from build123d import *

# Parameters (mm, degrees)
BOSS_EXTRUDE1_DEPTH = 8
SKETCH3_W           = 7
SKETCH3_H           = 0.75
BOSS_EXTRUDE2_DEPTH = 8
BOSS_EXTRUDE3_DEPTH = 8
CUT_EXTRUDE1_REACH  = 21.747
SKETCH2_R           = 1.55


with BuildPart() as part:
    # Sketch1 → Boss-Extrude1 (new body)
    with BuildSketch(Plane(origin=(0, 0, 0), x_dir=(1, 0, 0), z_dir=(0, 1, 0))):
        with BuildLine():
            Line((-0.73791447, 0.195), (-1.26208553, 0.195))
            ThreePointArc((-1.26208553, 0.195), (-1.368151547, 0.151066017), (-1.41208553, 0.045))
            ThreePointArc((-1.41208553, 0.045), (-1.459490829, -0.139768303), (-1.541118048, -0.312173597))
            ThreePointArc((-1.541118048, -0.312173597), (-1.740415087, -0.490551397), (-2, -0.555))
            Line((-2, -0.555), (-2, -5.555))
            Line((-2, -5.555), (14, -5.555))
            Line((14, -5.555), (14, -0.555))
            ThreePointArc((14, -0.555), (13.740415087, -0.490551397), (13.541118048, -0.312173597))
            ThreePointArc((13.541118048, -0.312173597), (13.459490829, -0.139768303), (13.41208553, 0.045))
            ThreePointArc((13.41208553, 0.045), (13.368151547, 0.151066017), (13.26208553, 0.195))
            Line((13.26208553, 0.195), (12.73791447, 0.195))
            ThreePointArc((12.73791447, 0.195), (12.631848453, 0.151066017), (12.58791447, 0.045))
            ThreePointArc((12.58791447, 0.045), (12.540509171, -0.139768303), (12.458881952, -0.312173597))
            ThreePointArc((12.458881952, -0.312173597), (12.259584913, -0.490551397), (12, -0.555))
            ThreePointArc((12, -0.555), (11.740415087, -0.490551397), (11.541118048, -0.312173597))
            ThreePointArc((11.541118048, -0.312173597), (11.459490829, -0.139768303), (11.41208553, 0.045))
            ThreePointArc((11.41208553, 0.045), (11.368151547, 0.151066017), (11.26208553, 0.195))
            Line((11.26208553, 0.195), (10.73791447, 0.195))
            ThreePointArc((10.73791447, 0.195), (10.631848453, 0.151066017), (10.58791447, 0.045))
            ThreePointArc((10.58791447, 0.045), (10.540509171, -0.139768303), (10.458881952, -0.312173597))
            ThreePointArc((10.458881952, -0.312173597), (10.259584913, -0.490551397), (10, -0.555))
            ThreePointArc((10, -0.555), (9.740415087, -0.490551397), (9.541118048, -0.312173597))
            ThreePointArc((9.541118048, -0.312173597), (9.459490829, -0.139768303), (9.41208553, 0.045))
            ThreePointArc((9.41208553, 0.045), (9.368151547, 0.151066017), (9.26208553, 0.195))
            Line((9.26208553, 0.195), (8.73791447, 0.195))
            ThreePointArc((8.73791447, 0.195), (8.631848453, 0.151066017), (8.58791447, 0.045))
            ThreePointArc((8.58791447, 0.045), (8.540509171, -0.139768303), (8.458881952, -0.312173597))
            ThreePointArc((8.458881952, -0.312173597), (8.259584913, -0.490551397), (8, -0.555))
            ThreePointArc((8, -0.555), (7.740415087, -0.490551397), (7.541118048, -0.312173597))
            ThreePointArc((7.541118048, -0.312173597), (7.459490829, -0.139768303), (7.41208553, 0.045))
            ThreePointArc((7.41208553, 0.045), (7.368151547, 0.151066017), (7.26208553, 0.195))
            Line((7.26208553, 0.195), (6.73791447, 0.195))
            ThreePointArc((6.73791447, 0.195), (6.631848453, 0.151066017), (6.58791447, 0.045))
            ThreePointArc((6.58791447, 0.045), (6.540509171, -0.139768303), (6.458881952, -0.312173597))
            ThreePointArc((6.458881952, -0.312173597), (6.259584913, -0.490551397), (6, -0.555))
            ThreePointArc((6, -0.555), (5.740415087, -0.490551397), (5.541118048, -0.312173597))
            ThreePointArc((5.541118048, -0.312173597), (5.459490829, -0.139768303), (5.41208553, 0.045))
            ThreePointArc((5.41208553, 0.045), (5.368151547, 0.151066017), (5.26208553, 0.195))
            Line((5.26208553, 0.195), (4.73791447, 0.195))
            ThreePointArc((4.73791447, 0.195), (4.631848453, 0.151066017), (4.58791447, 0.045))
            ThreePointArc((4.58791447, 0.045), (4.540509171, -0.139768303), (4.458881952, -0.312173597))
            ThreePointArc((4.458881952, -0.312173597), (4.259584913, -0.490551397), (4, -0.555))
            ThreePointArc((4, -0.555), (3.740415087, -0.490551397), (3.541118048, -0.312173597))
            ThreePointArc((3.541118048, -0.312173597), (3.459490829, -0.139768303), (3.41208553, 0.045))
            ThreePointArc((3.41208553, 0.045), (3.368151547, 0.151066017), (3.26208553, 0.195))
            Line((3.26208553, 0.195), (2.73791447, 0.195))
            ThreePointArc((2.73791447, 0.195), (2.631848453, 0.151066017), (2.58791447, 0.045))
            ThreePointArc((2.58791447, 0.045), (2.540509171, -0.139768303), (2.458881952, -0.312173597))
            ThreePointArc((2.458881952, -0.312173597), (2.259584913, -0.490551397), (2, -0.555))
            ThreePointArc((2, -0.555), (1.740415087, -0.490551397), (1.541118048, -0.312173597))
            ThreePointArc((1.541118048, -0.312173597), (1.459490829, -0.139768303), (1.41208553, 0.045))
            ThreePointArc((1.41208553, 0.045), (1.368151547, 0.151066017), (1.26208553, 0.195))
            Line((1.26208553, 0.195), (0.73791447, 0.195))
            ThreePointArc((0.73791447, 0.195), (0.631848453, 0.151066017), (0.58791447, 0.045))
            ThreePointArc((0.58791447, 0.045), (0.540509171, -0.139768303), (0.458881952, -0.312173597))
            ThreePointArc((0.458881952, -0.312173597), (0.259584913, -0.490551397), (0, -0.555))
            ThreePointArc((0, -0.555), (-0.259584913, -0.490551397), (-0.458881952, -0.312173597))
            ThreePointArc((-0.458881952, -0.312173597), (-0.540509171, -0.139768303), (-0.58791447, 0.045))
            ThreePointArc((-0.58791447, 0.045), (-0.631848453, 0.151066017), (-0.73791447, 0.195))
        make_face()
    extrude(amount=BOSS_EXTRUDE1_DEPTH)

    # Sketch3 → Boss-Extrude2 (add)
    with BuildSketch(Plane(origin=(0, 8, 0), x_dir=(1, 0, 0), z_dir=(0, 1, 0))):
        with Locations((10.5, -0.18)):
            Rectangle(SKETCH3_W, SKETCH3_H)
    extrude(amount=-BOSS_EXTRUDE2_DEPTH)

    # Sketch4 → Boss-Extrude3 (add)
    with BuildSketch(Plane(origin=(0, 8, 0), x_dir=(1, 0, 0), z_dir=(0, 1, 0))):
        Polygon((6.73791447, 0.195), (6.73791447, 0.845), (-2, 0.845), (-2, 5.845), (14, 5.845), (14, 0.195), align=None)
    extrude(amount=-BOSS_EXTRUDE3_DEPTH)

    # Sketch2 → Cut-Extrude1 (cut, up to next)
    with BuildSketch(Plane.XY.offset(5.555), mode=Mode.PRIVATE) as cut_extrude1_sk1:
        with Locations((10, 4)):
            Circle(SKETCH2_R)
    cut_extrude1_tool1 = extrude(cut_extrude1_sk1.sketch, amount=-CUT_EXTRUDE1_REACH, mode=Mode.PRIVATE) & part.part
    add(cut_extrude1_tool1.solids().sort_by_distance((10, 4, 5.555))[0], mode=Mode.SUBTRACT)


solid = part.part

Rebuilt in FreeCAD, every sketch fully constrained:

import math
import FreeCAD as App
import Part
import Sketcher

V = App.Vector
Q = App.Units.Quantity


def add_polygon(sketch, points):
    """Adds a closed chain of lines whose ends are joined by coincident constraints."""
    first, n = sketch.GeometryCount, len(points)
    for a, b in zip(points, points[1:] + points[:1]):
        sketch.addGeometry(Part.LineSegment(App.Vector(*a, 0), App.Vector(*b, 0)), False)
    for i in range(n):
        sketch.addConstraint(Sketcher.Constraint("Coincident", first + i, 2, first + (i + 1) % n, 1))

doc = App.newDocument("Part")
body = doc.addObject("PartDesign::Body", "Body")

# Sketch on XZ plane
sketch1 = body.newObject("Sketcher::SketchObject", "Sketch")
sketch1.AttachmentSupport = (doc.getObject("XZ_Plane"), [""])
sketch1.MapMode = "FlatFace"
sketch1.addGeometry([
    Part.LineSegment(V(-0.737914, -0.195, 0), V(-1.262086, -0.195, 0)),  # 0
    Part.ArcOfCircle(Part.Circle(V(-1.262086, -0.045, 0), V(0, 0, 1), 0.15), math.radians(-180), math.radians(-90)),  # 1
    Part.ArcOfCircle(Part.Circle(V(-2.4, -0.2, 0), V(0, 0, 1), 1), math.radians(8.916796), math.radians(30.808721)),  # 2
    Part.ArcOfCircle(Part.Circle(V(-2, 0, 0), V(0, 0, 1), 0.555), math.radians(34.22713), math.radians(90)),  # 3
    Part.LineSegment(V(-2, 0.555, 0), V(-2, 5.555, 0)),  # 4
    Part.LineSegment(V(-2, 5.555, 0), V(14, 5.555, 0)),  # 5
    Part.LineSegment(V(14, 5.555, 0), V(14, 0.555, 0)),  # 6
    Part.ArcOfCircle(Part.Circle(V(14, 0, 0), V(0, 0, 1), 0.555), math.radians(90), math.radians(145.77287)),  # 7
    Part.ArcOfCircle(Part.Circle(V(14.4, -0.2, 0), V(0, 0, 1), 1), math.radians(149.191279), math.radians(171.083204)),  # 8
    Part.ArcOfCircle(Part.Circle(V(13.262086, -0.045, 0), V(0, 0, 1), 0.15), math.radians(-90), math.radians(0)),  # 9
    Part.LineSegment(V(13.262086, -0.195, 0), V(12.737914, -0.195, 0)),  # 10
    Part.ArcOfCircle(Part.Circle(V(12.737914, -0.045, 0), V(0, 0, 1), 0.15), math.radians(-180), math.radians(-90)),  # 11
    Part.ArcOfCircle(Part.Circle(V(11.6, -0.2, 0), V(0, 0, 1), 1), math.radians(8.916796), math.radians(30.808721)),  # 12
    Part.ArcOfCircle(Part.Circle(V(12, 0, 0), V(0, 0, 1), 0.555), math.radians(34.22713), math.radians(90)),  # 13
    Part.ArcOfCircle(Part.Circle(V(12, 0, 0), V(0, 0, 1), 0.555), math.radians(90), math.radians(145.77287)),  # 14
    Part.ArcOfCircle(Part.Circle(V(12.4, -0.2, 0), V(0, 0, 1), 1), math.radians(149.191279), math.radians(171.083204)),  # 15
    Part.ArcOfCircle(Part.Circle(V(11.262086, -0.045, 0), V(0, 0, 1), 0.15), math.radians(-90), math.radians(0)),  # 16
    Part.LineSegment(V(11.262086, -0.195, 0), V(10.737914, -0.195, 0)),  # 17
    Part.ArcOfCircle(Part.Circle(V(10.737914, -0.045, 0), V(0, 0, 1), 0.15), math.radians(-180), math.radians(-90)),  # 18
    Part.ArcOfCircle(Part.Circle(V(9.6, -0.2, 0), V(0, 0, 1), 1), math.radians(8.916796), math.radians(30.808721)),  # 19
    Part.ArcOfCircle(Part.Circle(V(10, 0, 0), V(0, 0, 1), 0.555), math.radians(34.22713), math.radians(90)),  # 20
    Part.ArcOfCircle(Part.Circle(V(10, 0, 0), V(0, 0, 1), 0.555), math.radians(90), math.radians(145.77287)),  # 21
    Part.ArcOfCircle(Part.Circle(V(10.4, -0.2, 0), V(0, 0, 1), 1), math.radians(149.191279), math.radians(171.083204)),  # 22
    Part.ArcOfCircle(Part.Circle(V(9.262086, -0.045, 0), V(0, 0, 1), 0.15), math.radians(-90), math.radians(0)),  # 23
    Part.LineSegment(V(9.262086, -0.195, 0), V(8.737914, -0.195, 0)),  # 24
    Part.ArcOfCircle(Part.Circle(V(8.737914, -0.045, 0), V(0, 0, 1), 0.15), math.radians(-180), math.radians(-90)),  # 25
    Part.ArcOfCircle(Part.Circle(V(7.6, -0.2, 0), V(0, 0, 1), 1), math.radians(8.916796), math.radians(30.808721)),  # 26
    Part.ArcOfCircle(Part.Circle(V(8, 0, 0), V(0, 0, 1), 0.555), math.radians(34.22713), math.radians(90)),  # 27
    Part.ArcOfCircle(Part.Circle(V(8, 0, 0), V(0, 0, 1), 0.555), math.radians(90), math.radians(145.77287)),  # 28
    Part.ArcOfCircle(Part.Circle(V(8.4, -0.2, 0), V(0, 0, 1), 1), math.radians(149.191279), math.radians(171.083204)),  # 29
    Part.ArcOfCircle(Part.Circle(V(7.262086, -0.045, 0), V(0, 0, 1), 0.15), math.radians(-90), math.radians(0)),  # 30
    Part.LineSegment(V(7.262086, -0.195, 0), V(6.737914, -0.195, 0)),  # 31
    Part.ArcOfCircle(Part.Circle(V(6.737914, -0.045, 0), V(0, 0, 1), 0.15), math.radians(-180), math.radians(-90)),  # 32
    Part.ArcOfCircle(Part.Circle(V(5.6, -0.2, 0), V(0, 0, 1), 1), math.radians(8.916796), math.radians(30.808721)),  # 33
    Part.ArcOfCircle(Part.Circle(V(6, 0, 0), V(0, 0, 1), 0.555), math.radians(34.22713), math.radians(90)),  # 34
    Part.ArcOfCircle(Part.Circle(V(6, 0, 0), V(0, 0, 1), 0.555), math.radians(90), math.radians(145.77287)),  # 35
    Part.ArcOfCircle(Part.Circle(V(6.4, -0.2, 0), V(0, 0, 1), 1), math.radians(149.191279), math.radians(171.083204)),  # 36
    Part.ArcOfCircle(Part.Circle(V(5.262086, -0.045, 0), V(0, 0, 1), 0.15), math.radians(-90), math.radians(0)),  # 37
    Part.LineSegment(V(5.262086, -0.195, 0), V(4.737914, -0.195, 0)),  # 38
    Part.ArcOfCircle(Part.Circle(V(4.737914, -0.045, 0), V(0, 0, 1), 0.15), math.radians(-180), math.radians(-90)),  # 39
    Part.ArcOfCircle(Part.Circle(V(3.6, -0.2, 0), V(0, 0, 1), 1), math.radians(8.916796), math.radians(30.808721)),  # 40
    Part.ArcOfCircle(Part.Circle(V(4, 0, 0), V(0, 0, 1), 0.555), math.radians(34.22713), math.radians(90)),  # 41
    Part.ArcOfCircle(Part.Circle(V(4, 0, 0), V(0, 0, 1), 0.555), math.radians(90), math.radians(145.77287)),  # 42
    Part.ArcOfCircle(Part.Circle(V(4.4, -0.2, 0), V(0, 0, 1), 1), math.radians(149.191279), math.radians(171.083204)),  # 43
    Part.ArcOfCircle(Part.Circle(V(3.262086, -0.045, 0), V(0, 0, 1), 0.15), math.radians(-90), math.radians(0)),  # 44
    Part.LineSegment(V(3.262086, -0.195, 0), V(2.737914, -0.195, 0)),  # 45
    Part.ArcOfCircle(Part.Circle(V(2.737914, -0.045, 0), V(0, 0, 1), 0.15), math.radians(-180), math.radians(-90)),  # 46
    Part.ArcOfCircle(Part.Circle(V(1.6, -0.2, 0), V(0, 0, 1), 1), math.radians(8.916796), math.radians(30.808721)),  # 47
    Part.ArcOfCircle(Part.Circle(V(2, 0, 0), V(0, 0, 1), 0.555), math.radians(34.22713), math.radians(90)),  # 48
    Part.ArcOfCircle(Part.Circle(V(2, 0, 0), V(0, 0, 1), 0.555), math.radians(90), math.radians(145.77287)),  # 49
    Part.ArcOfCircle(Part.Circle(V(2.4, -0.2, 0), V(0, 0, 1), 1), math.radians(149.191279), math.radians(171.083204)),  # 50
    Part.ArcOfCircle(Part.Circle(V(1.262086, -0.045, 0), V(0, 0, 1), 0.15), math.radians(-90), math.radians(0)),  # 51
    Part.LineSegment(V(1.262086, -0.195, 0), V(0.737914, -0.195, 0)),  # 52
    Part.ArcOfCircle(Part.Circle(V(0.737914, -0.045, 0), V(0, 0, 1), 0.15), math.radians(-180), math.radians(-90)),  # 53
    Part.ArcOfCircle(Part.Circle(V(-0.4, -0.2, 0), V(0, 0, 1), 1), math.radians(8.916796), math.radians(30.808721)),  # 54
    Part.ArcOfCircle(Part.Circle(V(0, 0, 0), V(0, 0, 1), 0.555), math.radians(34.22713), math.radians(90)),  # 55
    Part.ArcOfCircle(Part.Circle(V(0, 0, 0), V(0, 0, 1), 0.555), math.radians(90), math.radians(145.77287)),  # 56
    Part.ArcOfCircle(Part.Circle(V(0.4, -0.2, 0), V(0, 0, 1), 1), math.radians(149.191279), math.radians(171.083204)),  # 57
    Part.ArcOfCircle(Part.Circle(V(-0.737914, -0.045, 0), V(0, 0, 1), 0.15), math.radians(-90), math.radians(0)),  # 58
], False)
sketch1.addConstraint([
    Sketcher.Constraint("Tangent", 0, 2, 1, 2),
    Sketcher.Constraint("Coincident", 1, 1, 2, 1),
    Sketcher.Constraint("Coincident", 2, 2, 3, 1),
    Sketcher.Constraint("Coincident", 3, 2, 4, 1),
    Sketcher.Constraint("Coincident", 4, 2, 5, 1),
    Sketcher.Constraint("Coincident", 5, 2, 6, 1),
    Sketcher.Constraint("Coincident", 6, 2, 7, 1),
    Sketcher.Constraint("Coincident", 7, 2, 8, 1),
    Sketcher.Constraint("Coincident", 8, 2, 9, 2),
    Sketcher.Constraint("Tangent", 9, 1, 10, 1),
    Sketcher.Constraint("Tangent", 10, 2, 11, 2),
    Sketcher.Constraint("Coincident", 11, 1, 12, 1),
    Sketcher.Constraint("Coincident", 12, 2, 13, 1),
    Sketcher.Constraint("Tangent", 13, 2, 14, 1),
    Sketcher.Constraint("Coincident", 14, 2, 15, 1),
    Sketcher.Constraint("Coincident", 15, 2, 16, 2),
    Sketcher.Constraint("Tangent", 16, 1, 17, 1),
    Sketcher.Constraint("Tangent", 17, 2, 18, 2),
    Sketcher.Constraint("Coincident", 18, 1, 19, 1),
    Sketcher.Constraint("Coincident", 19, 2, 20, 1),
    Sketcher.Constraint("Tangent", 20, 2, 21, 1),
    Sketcher.Constraint("Coincident", 21, 2, 22, 1),
    Sketcher.Constraint("Coincident", 22, 2, 23, 2),
    Sketcher.Constraint("Tangent", 23, 1, 24, 1),
    Sketcher.Constraint("Tangent", 24, 2, 25, 2),
    Sketcher.Constraint("Coincident", 25, 1, 26, 1),
    Sketcher.Constraint("Coincident", 26, 2, 27, 1),
    Sketcher.Constraint("Tangent", 27, 2, 28, 1),
    Sketcher.Constraint("Coincident", 28, 2, 29, 1),
    Sketcher.Constraint("Coincident", 29, 2, 30, 2),
    Sketcher.Constraint("Tangent", 30, 1, 31, 1),
    Sketcher.Constraint("Tangent", 31, 2, 32, 2),
    Sketcher.Constraint("Coincident", 32, 1, 33, 1),
    Sketcher.Constraint("Coincident", 33, 2, 34, 1),
    Sketcher.Constraint("Tangent", 34, 2, 35, 1),
    Sketcher.Constraint("Coincident", 35, 2, 36, 1),
    Sketcher.Constraint("Coincident", 36, 2, 37, 2),
    Sketcher.Constraint("Tangent", 37, 1, 38, 1),
    Sketcher.Constraint("Tangent", 38, 2, 39, 2),
    Sketcher.Constraint("Coincident", 39, 1, 40, 1),
    Sketcher.Constraint("Coincident", 40, 2, 41, 1),
    Sketcher.Constraint("Tangent", 41, 2, 42, 1),
    Sketcher.Constraint("Coincident", 42, 2, 43, 1),
    Sketcher.Constraint("Coincident", 43, 2, 44, 2),
    Sketcher.Constraint("Tangent", 44, 1, 45, 1),
    Sketcher.Constraint("Tangent", 45, 2, 46, 2),
    Sketcher.Constraint("Coincident", 46, 1, 47, 1),
    Sketcher.Constraint("Coincident", 47, 2, 48, 1),
    Sketcher.Constraint("Tangent", 48, 2, 49, 1),
    Sketcher.Constraint("Coincident", 49, 2, 50, 1),
    Sketcher.Constraint("Coincident", 50, 2, 51, 2),
    Sketcher.Constraint("Tangent", 51, 1, 52, 1),
    Sketcher.Constraint("Tangent", 52, 2, 53, 2),
    Sketcher.Constraint("Coincident", 53, 1, 54, 1),
    Sketcher.Constraint("Coincident", 54, 2, 55, 1),
    Sketcher.Constraint("Tangent", 55, 2, 56, 1),
    Sketcher.Constraint("Coincident", 56, 2, 57, 1),
    Sketcher.Constraint("Coincident", 57, 2, 58, 2),
    Sketcher.Constraint("Tangent", 58, 1, 0, 1),
    Sketcher.Constraint("Horizontal", 0),
    Sketcher.Constraint("Vertical", 4),
    Sketcher.Constraint("Horizontal", 5),
    Sketcher.Constraint("Vertical", 6),
    Sketcher.Constraint("Horizontal", 10),
    Sketcher.Constraint("Horizontal", 17),
    Sketcher.Constraint("Horizontal", 24),
    Sketcher.Constraint("Horizontal", 31),
    Sketcher.Constraint("Horizontal", 38),
    Sketcher.Constraint("Horizontal", 45),
    Sketcher.Constraint("Horizontal", 52),
    Sketcher.Constraint("Coincident", 55, 3, -1, 1),
    Sketcher.Constraint("Equal", 3, 7),
    Sketcher.Constraint("Equal", 2, 8),
    Sketcher.Constraint("Equal", 1, 9),
    Sketcher.Constraint("Equal", 9, 11),
    Sketcher.Constraint("Equal", 8, 12),
    Sketcher.Constraint("Equal", 7, 13),
    Sketcher.Constraint("Equal", 13, 14),
    Sketcher.Constraint("Equal", 12, 15),
    Sketcher.Constraint("Equal", 11, 16),
    Sketcher.Constraint("Equal", 16, 18),
    Sketcher.Constraint("Equal", 15, 19),
    Sketcher.Constraint("Equal", 14, 20),
    Sketcher.Constraint("Equal", 20, 21),
    Sketcher.Constraint("Equal", 19, 22),
    Sketcher.Constraint("Equal", 18, 23),
    Sketcher.Constraint("Equal", 23, 25),
    Sketcher.Constraint("Equal", 22, 26),
    Sketcher.Constraint("Equal", 21, 27),
    Sketcher.Constraint("Equal", 27, 28),
    Sketcher.Constraint("Equal", 26, 29),
    Sketcher.Constraint("Equal", 25, 30),
    Sketcher.Constraint("Equal", 30, 32),
    Sketcher.Constraint("Equal", 29, 33),
    Sketcher.Constraint("Equal", 28, 34),
    Sketcher.Constraint("Equal", 34, 35),
    Sketcher.Constraint("Equal", 33, 36),
    Sketcher.Constraint("Equal", 32, 37),
    Sketcher.Constraint("Equal", 37, 39),
    Sketcher.Constraint("Equal", 36, 40),
    Sketcher.Constraint("Equal", 35, 41),
    Sketcher.Constraint("Equal", 41, 42),
    Sketcher.Constraint("Equal", 40, 43),
    Sketcher.Constraint("Equal", 39, 44),
    Sketcher.Constraint("Equal", 44, 46),
    Sketcher.Constraint("Equal", 43, 47),
    Sketcher.Constraint("Equal", 42, 48),
    Sketcher.Constraint("Equal", 48, 49),
    Sketcher.Constraint("Equal", 47, 50),
    Sketcher.Constraint("Equal", 46, 51),
    Sketcher.Constraint("Equal", 51, 53),
    Sketcher.Constraint("Equal", 50, 54),
    Sketcher.Constraint("Equal", 49, 55),
    Sketcher.Constraint("Equal", 55, 56),
    Sketcher.Constraint("Equal", 54, 57),
    Sketcher.Constraint("Equal", 53, 58),
    Sketcher.Constraint("Symmetric", 3, 3, 48, 3, -1, 1),
    Sketcher.Constraint("Symmetric", 2, 3, 50, 3, -2),
    Sketcher.Constraint("Symmetric", 1, 3, 51, 3, -2),
    Sketcher.Constraint("Symmetric", 54, 3, 57, 3, -2),
    Sketcher.Constraint("Symmetric", 3, 2, 48, 2, -2),
    Sketcher.Constraint("PointOnObject", 7, 3, -1),
    Sketcher.Constraint("PointOnObject", 13, 3, -1),
    Sketcher.Constraint("PointOnObject", 20, 3, -1),
    Sketcher.Constraint("PointOnObject", 27, 3, -1),
    Sketcher.Constraint("PointOnObject", 34, 3, -1),
    Sketcher.Constraint("PointOnObject", 41, 3, -1),
    Sketcher.Constraint("PointOnObject", 55, 2, -2),
    Sketcher.Constraint("Horizontal", 2, 3, 8, 3),
    Sketcher.Constraint("Horizontal", 1, 3, 9, 3),
    Sketcher.Constraint("Horizontal", 8, 3, 12, 3),
    Sketcher.Constraint("Horizontal", 12, 3, 15, 3),
    Sketcher.Constraint("Horizontal", 11, 3, 16, 3),
    Sketcher.Constraint("Horizontal", 15, 3, 19, 3),
    Sketcher.Constraint("Horizontal", 19, 3, 22, 3),
    Sketcher.Constraint("Horizontal", 18, 3, 23, 3),
    Sketcher.Constraint("Horizontal", 22, 3, 26, 3),
    Sketcher.Constraint("Horizontal", 26, 3, 29, 3),
    Sketcher.Constraint("Horizontal", 25, 3, 30, 3),
    Sketcher.Constraint("Horizontal", 29, 3, 33, 3),
    Sketcher.Constraint("Horizontal", 33, 3, 36, 3),
    Sketcher.Constraint("Horizontal", 32, 3, 37, 3),
    Sketcher.Constraint("Horizontal", 36, 3, 40, 3),
    Sketcher.Constraint("Horizontal", 40, 3, 43, 3),
    Sketcher.Constraint("Horizontal", 39, 3, 44, 3),
    Sketcher.Constraint("Horizontal", 43, 3, 47, 3),
    Sketcher.Constraint("Horizontal", 50, 3, 54, 3),
    Sketcher.Constraint("Horizontal", 58, 3, 1, 1),
    Sketcher.Constraint("Horizontal", 2, 2, 7, 2),
    Sketcher.Constraint("Horizontal", 1, 1, 8, 2),
    Sketcher.Constraint("Horizontal", 8, 2, 11, 1),
    Sketcher.Constraint("Horizontal", 7, 2, 12, 2),
    Sketcher.Constraint("Horizontal", 12, 2, 14, 2),
    Sketcher.Constraint("Horizontal", 11, 1, 15, 2),
    Sketcher.Constraint("Horizontal", 15, 2, 18, 1),
    Sketcher.Constraint("Horizontal", 14, 2, 19, 2),
    Sketcher.Constraint("Horizontal", 19, 2, 21, 2),
    Sketcher.Constraint("Horizontal", 18, 1, 22, 2),
    Sketcher.Constraint("Horizontal", 22, 2, 25, 1),
    Sketcher.Constraint("Horizontal", 21, 2, 26, 2),
    Sketcher.Constraint("Horizontal", 26, 2, 28, 2),
    Sketcher.Constraint("Horizontal", 25, 1, 29, 2),
    Sketcher.Constraint("Horizontal", 29, 2, 32, 1),
    Sketcher.Constraint("Horizontal", 28, 2, 33, 2),
    Sketcher.Constraint("Horizontal", 33, 2, 35, 2),
    Sketcher.Constraint("Horizontal", 32, 1, 36, 2),
    Sketcher.Constraint("Horizontal", 36, 2, 39, 1),
    Sketcher.Constraint("Horizontal", 35, 2, 40, 2),
    Sketcher.Constraint("Horizontal", 40, 2, 42, 2),
    Sketcher.Constraint("Horizontal", 39, 1, 43, 2),
    Sketcher.Constraint("Horizontal", 43, 2, 46, 1),
    Sketcher.Constraint("Horizontal", 42, 2, 47, 2),
    Sketcher.Constraint("Horizontal", 50, 2, 53, 1),
    Sketcher.Constraint("Horizontal", 49, 2, 54, 2),
    Sketcher.Constraint("Horizontal", 53, 1, 57, 2),
    Sketcher.Constraint("Vertical", 7, 3, 5, 2),
    Sketcher.Constraint("Vertical", 14, 3, 13, 2),
    Sketcher.Constraint("Vertical", 21, 3, 20, 2),
    Sketcher.Constraint("Vertical", 28, 3, 27, 2),
    Sketcher.Constraint("Vertical", 35, 3, 34, 2),
    Sketcher.Constraint("Vertical", 42, 3, 41, 2),
    Sketcher.Constraint("Vertical", 49, 3, 48, 2),
    Sketcher.Constraint("Equal", 0, 10),
    Sketcher.Constraint("Equal", 10, 17),
    Sketcher.Constraint("Equal", 17, 24),
    Sketcher.Constraint("Equal", 24, 31),
    Sketcher.Constraint("Equal", 31, 38),
    Sketcher.Constraint("Equal", 38, 45),
    Sketcher.Constraint("Radius", 2, Q("1 mm")),
    Sketcher.Constraint("DistanceX", 5, 1, 5, 2, Q("16 mm")),
    Sketcher.Constraint("DistanceY", 4, 1, 4, 2, Q("5 mm")),
    Sketcher.Constraint("Radius", 1, Q("0.15 mm")),
    Sketcher.Constraint("Radius", 3, Q("0.555 mm")),
    Sketcher.Constraint("DistanceX", 2, 3, -1, 1, Q("2.4 mm")),
    Sketcher.Constraint("DistanceY", 2, 3, -1, 1, Q("0.2 mm")),
    Sketcher.Constraint("DistanceY", 1, 3, -1, 1, Q("0.045 mm")),
])
pad1 = body.newObject("PartDesign::Pad", "Pad")
pad1.Profile = sketch1
pad1.Length = 8
pad1.Reversed = True

# Sketch on XZ plane
sketch2 = body.newObject("Sketcher::SketchObject", "Sketch001")
sketch2.AttachmentSupport = (doc.getObject("XZ_Plane"), [""])
sketch2.MapMode = "FlatFace"
sketch2.AttachmentOffset = App.Placement(V(0, 0, -8), App.Rotation())
add_polygon(sketch2, [(7, -0.195), (7, 0.555), (14, 0.555), (14, -0.195)])  # lines 0-3
sketch2.addConstraint([
    Sketcher.Constraint("Vertical", 0),
    Sketcher.Constraint("Horizontal", 1),
    Sketcher.Constraint("Vertical", 2),
    Sketcher.Constraint("Horizontal", 3),
    Sketcher.Constraint("DistanceX", 1, 1, 1, 2, Q("7 mm")),
    Sketcher.Constraint("DistanceX", -1, 1, 0, 2, Q("7 mm")),
    Sketcher.Constraint("DistanceY", 0, 1, 0, 2, Q("0.75 mm")),
    Sketcher.Constraint("DistanceY", -1, 1, 0, 2, Q("0.555 mm")),
])
pad2 = body.newObject("PartDesign::Pad", "Pad001")
pad2.Profile = sketch2
pad2.Length = 8

# Sketch on XZ plane
sketch3 = body.newObject("Sketcher::SketchObject", "Sketch002")
sketch3.AttachmentSupport = (doc.getObject("XZ_Plane"), [""])
sketch3.MapMode = "FlatFace"
sketch3.AttachmentOffset = App.Placement(V(0, 0, -8), App.Rotation())
add_polygon(sketch3, [(6.737914, -0.845), (6.737914, -0.195), (14, -0.195), (14, -5.845), (-2, -5.845), (-2, -0.845)])  # lines 0-5
sketch3.addConstraint([
    Sketcher.Constraint("Vertical", 0),
    Sketcher.Constraint("Horizontal", 1),
    Sketcher.Constraint("Vertical", 2),
    Sketcher.Constraint("Horizontal", 3),
    Sketcher.Constraint("Vertical", 4),
    Sketcher.Constraint("Horizontal", 5),
    Sketcher.Constraint("DistanceX", 3, 2, 3, 1, Q("16 mm")),
    Sketcher.Constraint("DistanceY", 4, 1, 4, 2, Q("5 mm")),
    Sketcher.Constraint("DistanceX", -1, 1, 1, 2, Q("14 mm")),
    Sketcher.Constraint("DistanceY", 0, 1, 0, 2, Q("0.65 mm")),
    Sketcher.Constraint("DistanceY", 0, 2, -1, 1, Q("0.195 mm")),
    Sketcher.Constraint("DistanceX", 1, 1, 1, 2, Q("7.262086 mm")),
])
pad3 = body.newObject("PartDesign::Pad", "Pad002")
pad3.Profile = sketch3
pad3.Length = 8

# Sketch on XY plane
sketch4 = body.newObject("Sketcher::SketchObject", "Sketch003")
sketch4.AttachmentSupport = (doc.getObject("XY_Plane"), [""])
sketch4.MapMode = "FlatFace"
sketch4.AttachmentOffset = App.Placement(V(0, 0, 5.555), App.Rotation())
sketch4.addGeometry(Part.Circle(V(10, 4, 0), V(0, 0, 1), 1.55), False)
sketch4.addConstraint([
    Sketcher.Constraint("Diameter", 0, Q("3.1 mm")),
    Sketcher.Constraint("DistanceX", -1, 1, 0, 3, Q("10 mm")),
    Sketcher.Constraint("DistanceY", -1, 1, 0, 3, Q("4 mm")),
])
pocket1 = body.newObject("PartDesign::Pocket", "Pocket")
pocket1.Profile = sketch4
pocket1.Type = "UpToFirst"

doc.recompute()
